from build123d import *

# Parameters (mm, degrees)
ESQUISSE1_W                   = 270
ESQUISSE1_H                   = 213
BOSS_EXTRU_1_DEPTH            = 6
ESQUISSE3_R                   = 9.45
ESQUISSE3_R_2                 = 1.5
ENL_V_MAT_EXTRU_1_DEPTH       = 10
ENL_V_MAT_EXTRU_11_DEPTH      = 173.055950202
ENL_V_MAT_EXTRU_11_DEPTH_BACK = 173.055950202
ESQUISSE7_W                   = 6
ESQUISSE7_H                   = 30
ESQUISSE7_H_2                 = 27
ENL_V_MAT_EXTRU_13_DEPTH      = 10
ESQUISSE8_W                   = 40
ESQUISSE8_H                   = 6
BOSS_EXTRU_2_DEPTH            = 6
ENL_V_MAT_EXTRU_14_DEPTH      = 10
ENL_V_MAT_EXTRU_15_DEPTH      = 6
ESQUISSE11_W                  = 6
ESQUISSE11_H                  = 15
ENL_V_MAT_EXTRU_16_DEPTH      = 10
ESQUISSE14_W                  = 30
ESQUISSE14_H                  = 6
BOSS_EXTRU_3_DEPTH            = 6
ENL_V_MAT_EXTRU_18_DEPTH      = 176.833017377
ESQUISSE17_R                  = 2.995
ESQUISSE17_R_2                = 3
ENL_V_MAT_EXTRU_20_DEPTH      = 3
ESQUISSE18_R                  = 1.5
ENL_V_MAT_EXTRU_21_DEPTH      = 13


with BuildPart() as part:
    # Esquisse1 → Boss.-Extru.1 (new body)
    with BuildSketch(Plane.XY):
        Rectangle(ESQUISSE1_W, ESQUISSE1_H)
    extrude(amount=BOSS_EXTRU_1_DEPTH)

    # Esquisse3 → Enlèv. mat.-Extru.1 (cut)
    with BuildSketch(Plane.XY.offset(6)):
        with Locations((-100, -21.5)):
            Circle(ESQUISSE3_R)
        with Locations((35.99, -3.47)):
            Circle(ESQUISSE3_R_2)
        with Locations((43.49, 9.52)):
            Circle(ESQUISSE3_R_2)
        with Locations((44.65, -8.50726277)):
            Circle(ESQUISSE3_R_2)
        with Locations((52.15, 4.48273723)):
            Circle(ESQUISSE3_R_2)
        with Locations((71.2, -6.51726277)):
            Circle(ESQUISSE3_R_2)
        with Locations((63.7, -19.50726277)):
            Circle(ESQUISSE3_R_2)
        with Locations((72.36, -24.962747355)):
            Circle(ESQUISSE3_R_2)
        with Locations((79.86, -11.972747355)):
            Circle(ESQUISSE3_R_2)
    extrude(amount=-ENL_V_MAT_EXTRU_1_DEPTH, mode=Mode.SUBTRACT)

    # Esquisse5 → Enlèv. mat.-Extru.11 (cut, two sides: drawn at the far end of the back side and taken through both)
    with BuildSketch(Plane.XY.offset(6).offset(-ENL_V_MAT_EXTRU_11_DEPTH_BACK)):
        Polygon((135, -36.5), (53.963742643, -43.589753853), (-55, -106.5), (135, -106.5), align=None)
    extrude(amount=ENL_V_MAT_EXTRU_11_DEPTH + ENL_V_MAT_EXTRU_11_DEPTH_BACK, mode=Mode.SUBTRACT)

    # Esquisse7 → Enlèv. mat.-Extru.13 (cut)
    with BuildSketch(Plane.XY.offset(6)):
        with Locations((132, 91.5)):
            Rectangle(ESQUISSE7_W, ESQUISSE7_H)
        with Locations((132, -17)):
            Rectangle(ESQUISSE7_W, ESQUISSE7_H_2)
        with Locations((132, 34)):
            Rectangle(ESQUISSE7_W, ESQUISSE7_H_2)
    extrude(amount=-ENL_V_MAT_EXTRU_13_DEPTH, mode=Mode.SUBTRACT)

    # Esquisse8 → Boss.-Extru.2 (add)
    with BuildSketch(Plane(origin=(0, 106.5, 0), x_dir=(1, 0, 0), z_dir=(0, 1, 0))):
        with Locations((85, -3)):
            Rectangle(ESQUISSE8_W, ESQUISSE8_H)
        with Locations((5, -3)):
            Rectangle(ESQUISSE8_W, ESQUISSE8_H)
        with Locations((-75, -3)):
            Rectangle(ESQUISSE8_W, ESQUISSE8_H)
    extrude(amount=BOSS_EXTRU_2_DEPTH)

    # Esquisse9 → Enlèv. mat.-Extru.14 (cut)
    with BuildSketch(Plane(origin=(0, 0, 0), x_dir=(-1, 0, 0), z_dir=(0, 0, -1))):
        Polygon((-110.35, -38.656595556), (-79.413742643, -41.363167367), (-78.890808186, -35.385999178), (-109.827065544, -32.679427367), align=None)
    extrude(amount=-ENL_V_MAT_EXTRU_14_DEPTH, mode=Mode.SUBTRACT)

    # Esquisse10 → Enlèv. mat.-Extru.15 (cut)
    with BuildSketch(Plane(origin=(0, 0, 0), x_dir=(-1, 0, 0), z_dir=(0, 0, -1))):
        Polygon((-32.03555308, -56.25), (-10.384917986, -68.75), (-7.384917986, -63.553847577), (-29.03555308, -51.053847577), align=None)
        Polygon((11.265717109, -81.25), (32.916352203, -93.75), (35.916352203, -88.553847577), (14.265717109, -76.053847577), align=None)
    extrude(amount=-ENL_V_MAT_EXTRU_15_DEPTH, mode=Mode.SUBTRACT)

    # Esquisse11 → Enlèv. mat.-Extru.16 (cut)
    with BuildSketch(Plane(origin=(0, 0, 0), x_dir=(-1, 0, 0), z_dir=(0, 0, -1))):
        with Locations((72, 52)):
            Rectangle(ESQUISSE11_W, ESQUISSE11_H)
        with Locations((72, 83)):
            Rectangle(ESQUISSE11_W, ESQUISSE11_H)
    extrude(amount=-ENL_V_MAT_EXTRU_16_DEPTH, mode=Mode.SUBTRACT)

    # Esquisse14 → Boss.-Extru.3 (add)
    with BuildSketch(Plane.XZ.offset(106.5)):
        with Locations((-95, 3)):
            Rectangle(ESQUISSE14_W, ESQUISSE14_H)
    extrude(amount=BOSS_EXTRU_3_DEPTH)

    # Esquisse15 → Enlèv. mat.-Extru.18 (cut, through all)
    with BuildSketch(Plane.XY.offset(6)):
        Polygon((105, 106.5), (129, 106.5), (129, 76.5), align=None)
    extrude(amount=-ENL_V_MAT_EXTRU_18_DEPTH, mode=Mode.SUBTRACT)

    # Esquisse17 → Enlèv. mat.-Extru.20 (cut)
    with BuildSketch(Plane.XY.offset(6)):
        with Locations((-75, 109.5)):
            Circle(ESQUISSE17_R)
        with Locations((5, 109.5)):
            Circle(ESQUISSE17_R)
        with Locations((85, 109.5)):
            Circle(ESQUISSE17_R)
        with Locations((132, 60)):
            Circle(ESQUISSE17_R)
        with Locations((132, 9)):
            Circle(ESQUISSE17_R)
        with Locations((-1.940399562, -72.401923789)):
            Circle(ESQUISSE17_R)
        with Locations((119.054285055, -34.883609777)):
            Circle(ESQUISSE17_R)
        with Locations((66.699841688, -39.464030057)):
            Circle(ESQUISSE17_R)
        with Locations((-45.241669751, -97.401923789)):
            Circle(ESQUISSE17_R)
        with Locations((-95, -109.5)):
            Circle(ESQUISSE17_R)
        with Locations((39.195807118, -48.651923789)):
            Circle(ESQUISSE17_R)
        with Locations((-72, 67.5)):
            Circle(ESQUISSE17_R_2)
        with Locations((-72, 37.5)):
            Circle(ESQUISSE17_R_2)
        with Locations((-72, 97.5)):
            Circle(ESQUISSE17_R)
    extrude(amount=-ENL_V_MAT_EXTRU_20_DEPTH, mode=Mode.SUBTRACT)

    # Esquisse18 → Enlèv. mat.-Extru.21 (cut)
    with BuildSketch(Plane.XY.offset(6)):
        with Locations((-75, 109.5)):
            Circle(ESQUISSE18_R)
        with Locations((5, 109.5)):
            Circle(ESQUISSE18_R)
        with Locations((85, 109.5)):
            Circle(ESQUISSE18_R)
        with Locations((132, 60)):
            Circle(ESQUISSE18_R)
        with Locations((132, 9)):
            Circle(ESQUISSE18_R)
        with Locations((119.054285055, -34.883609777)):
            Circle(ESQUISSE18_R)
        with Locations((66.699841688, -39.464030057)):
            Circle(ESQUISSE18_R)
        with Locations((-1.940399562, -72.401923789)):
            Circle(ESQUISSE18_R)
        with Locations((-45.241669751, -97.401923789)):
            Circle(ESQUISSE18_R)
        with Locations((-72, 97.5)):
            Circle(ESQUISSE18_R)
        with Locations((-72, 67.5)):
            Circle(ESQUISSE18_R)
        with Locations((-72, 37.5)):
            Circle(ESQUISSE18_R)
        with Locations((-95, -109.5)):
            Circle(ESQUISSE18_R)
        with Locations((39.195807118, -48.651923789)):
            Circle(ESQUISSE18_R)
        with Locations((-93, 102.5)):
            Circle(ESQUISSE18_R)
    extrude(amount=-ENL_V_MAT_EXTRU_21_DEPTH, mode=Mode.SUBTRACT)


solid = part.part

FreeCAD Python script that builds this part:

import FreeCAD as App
import Part
import Sketcher

V = App.Vector
Q = App.Units.Quantity

doc = App.newDocument("Part")
params = doc.addObject("Spreadsheet::Sheet", "Params")
for row, (alias, value) in enumerate([
    ("sketch1_width", "270 mm"),
    ("sketch1_height", "213 mm"),
    ("pad1_length", "6 mm"),
    ("sketch2_diameter", "3 mm"),
    ("sketch2_diameter2", "18.9 mm"),
    ("pocket1_length", "10 mm"),
    ("sketch3_width", "190 mm"),
    ("sketch3_height", "70 mm"),
    ("sketch4_width", "6 mm"),
    ("sketch4_height", "30 mm"),
    ("sketch4_height2", "27 mm"),
    ("pocket3_length", "10 mm"),
    ("sketch5_width", "40 mm"),
    ("sketch5_height", "6 mm"),
    ("pad2_length", "6 mm"),
    ("sketch6_length", "6 mm"),
    ("pocket4_length", "10 mm"),
    ("sketch7_length", "25 mm"),
    ("sketch7_length2", "6 mm"),
    ("pocket5_length", "6 mm"),
    ("sketch8_width", "6 mm"),
    ("sketch8_height", "15 mm"),
    ("pocket6_length", "10 mm"),
    ("sketch9_width", "30 mm"),
    ("sketch9_height", "6 mm"),
    ("pad3_length", "6 mm"),
    ("sketch10_width", "24 mm"),
    ("sketch10_height", "30 mm"),
    ("sketch11_diameter", "6 mm"),
    ("sketch11_diameter2", "5.99 mm"),
    ("pocket8_length", "3 mm"),
    ("sketch12_diameter", "3 mm"),
    ("pocket9_length", "13 mm"),
], start=1):
    params.set(f"A{row}", alias)
    params.set(f"B{row}", "=" + value)
    params.setAlias(f"B{row}", alias)

body = doc.addObject("PartDesign::Body", "Body")

# Sketch on XY plane
sketch1 = body.newObject("Sketcher::SketchObject", "Sketch")
sketch1.AttachmentSupport = (doc.getObject("XY_Plane"), [""])
sketch1.MapMode = "FlatFace"
sketch1.addGeometry(Part.LineSegment(V(-135, 106, 0), V(-135, -106, 0)), False)
sketch1.addGeometry(Part.LineSegment(V(-135, -106, 0), V(135, -106, 0)), False)
sketch1.addGeometry(Part.LineSegment(V(135, -106, 0), V(135, 106, 0)), False)
sketch1.addGeometry(Part.LineSegment(V(135, 106, 0), V(-135, 106, 0)), False)
sketch1.addConstraint(Sketcher.Constraint("Coincident", 0, 2, 1, 1))
sketch1.addConstraint(Sketcher.Constraint("Coincident", 1, 2, 2, 1))
sketch1.addConstraint(Sketcher.Constraint("Coincident", 2, 2, 3, 1))
sketch1.addConstraint(Sketcher.Constraint("Coincident", 3, 2, 0, 1))
sketch1.addConstraint(Sketcher.Constraint("Vertical", 0))
sketch1.addConstraint(Sketcher.Constraint("Horizontal", 1))
sketch1.addConstraint(Sketcher.Constraint("Vertical", 2))
sketch1.addConstraint(Sketcher.Constraint("Horizontal", 3))
sketch1.addConstraint(Sketcher.Constraint("Symmetric", 0, 2, 2, 2, -1, 1))
sketch1.addConstraint(Sketcher.Constraint("DistanceX", 1, 1, 1, 2, Q("270 mm")))
sketch1.addConstraint(Sketcher.Constraint("DistanceY", 0, 2, 0, 1, Q("213 mm")))
sketch1.setExpression("Constraints[9]", "Params.sketch1_width")
sketch1.setExpression("Constraints[10]", "Params.sketch1_height")
pad1 = body.newObject("PartDesign::Pad", "Pad")
pad1.Profile = sketch1
pad1.setExpression("Length", "Params.pad1_length")

# Sketch on XY plane
sketch2 = body.newObject("Sketcher::SketchObject", "Sketch001")
sketch2.AttachmentSupport = (doc.getObject("XY_Plane"), [""])
sketch2.MapMode = "FlatFace"
sketch2.AttachmentOffset = App.Placement(V(0, 0, 6), App.Rotation())
sketch2.addGeometry(Part.Circle(V(-100, -21.5, 0), V(0, 0, 1), 9.4), False)
sketch2.addGeometry(Part.Circle(V(36, -3.5, 0), V(0, 0, 1), 1.5), False)
sketch2.addGeometry(Part.Circle(V(43.5, 9.5, 0), V(0, 0, 1), 1.5), False)
sketch2.addGeometry(Part.Circle(V(44.6, -8.5, 0), V(0, 0, 1), 1.5), False)
sketch2.addGeometry(Part.Circle(V(52.1, 4.5, 0), V(0, 0, 1), 1.5), False)
sketch2.addGeometry(Part.Circle(V(71.2, -6.5, 0), V(0, 0, 1), 1.5), False)
sketch2.addGeometry(Part.Circle(V(63.7, -19.5, 0), V(0, 0, 1), 1.5), False)
sketch2.addGeometry(Part.Circle(V(72.4, -25, 0), V(0, 0, 1), 1.5), False)
sketch2.addGeometry(Part.Circle(V(79.9, -12, 0), V(0, 0, 1), 1.5), False)
sketch2.addConstraint(Sketcher.Constraint("Equal", 1, 2))
sketch2.addConstraint(Sketcher.Constraint("Equal", 2, 3))
sketch2.addConstraint(Sketcher.Constraint("Equal", 3, 4))
sketch2.addConstraint(Sketcher.Constraint("Equal", 4, 5))
sketch2.addConstraint(Sketcher.Constraint("Equal", 5, 6))
sketch2.addConstraint(Sketcher.Constraint("Equal", 6, 7))
sketch2.addConstraint(Sketcher.Constraint("Equal", 7, 8))
sketch2.addConstraint(Sketcher.Constraint("Diameter", 1, Q("3 mm")))
sketch2.addConstraint(Sketcher.Constraint("Diameter", 0, Q("18.9 mm")))
sketch2.addConstraint(Sketcher.Constraint("DistanceX", 0, 3, -1, 1, Q("100 mm")))
sketch2.addConstraint(Sketcher.Constraint("DistanceY", 5, 3, 4, 3, Q("11 mm")))
sketch2.addConstraint(Sketcher.Constraint("DistanceY", 6, 3, 3, 3, Q("11 mm")))
sketch2.addConstraint(Sketcher.Constraint("DistanceY", 0, 3, -1, 1, Q("21.5 mm")))
sketch2.addConstraint(Sketcher.Constraint("DistanceX", -1, 1, 5, 3, Q("71.2 mm")))
sketch2.addConstraint(Sketcher.Constraint("DistanceX", -1, 1, 6, 3, Q("63.7 mm")))
sketch2.addConstraint(Sketcher.Constraint("DistanceX", 1, 3, 2, 3, Q("7.5 mm")))
sketch2.addConstraint(Sketcher.Constraint("DistanceX", 3, 3, 4, 3, Q("7.5 mm")))
sketch2.addConstraint(Sketcher.Constraint("DistanceX", 7, 3, 8, 3, Q("7.5 mm")))
sketch2.addConstraint(Sketcher.Constraint("DistanceX", -1, 1, 1, 3, Q("35.99 mm")))
sketch2.addConstraint(Sketcher.Constraint("DistanceY", 1, 3, -1, 1, Q("3.47 mm")))
sketch2.addConstraint(Sketcher.Constraint("DistanceY", -1, 1, 2, 3, Q("9.52 mm")))
sketch2.addConstraint(Sketcher.Constraint("DistanceX", -1, 1, 3, 3, Q("44.65 mm")))
sketch2.addConstraint(Sketcher.Constraint("DistanceX", -1, 1, 7, 3, Q("72.36 mm")))
sketch2.addConstraint(Sketcher.Constraint("DistanceY", 3, 3, 4, 3, Q("12.99 mm")))
sketch2.addConstraint(Sketcher.Constraint("DistanceY", 7, 3, 8, 3, Q("12.99 mm")))
sketch2.addConstraint(Sketcher.Constraint("DistanceY", 3, 3, -1, 1, Q("8.507263 mm")))
sketch2.addConstraint(Sketcher.Constraint("DistanceY", 7, 3, -1, 1, Q("24.962747 mm")))
sketch2.setExpression("Constraints[7]", "Params.sketch2_diameter")
sketch2.setExpression("Constraints[8]", "Params.sketch2_diameter2")
pocket1 = body.newObject("PartDesign::Pocket", "Pocket")
pocket1.Profile = sketch2
pocket1.setExpression("Length", "Params.pocket1_length")

# Sketch on XY plane
sketch3 = body.newObject("Sketcher::SketchObject", "Sketch002")
sketch3.AttachmentSupport = (doc.getObject("XY_Plane"), [""])
sketch3.MapMode = "FlatFace"
sketch3.AttachmentOffset = App.Placement(V(0, 0, 6), App.Rotation())
sketch3.addGeometry(Part.LineSegment(V(135, -36, 0), V(54, -44, 0)), False)
sketch3.addGeometry(Part.LineSegment(V(54, -44, 0), V(-55, -106, 0)), False)
sketch3.addGeometry(Part.LineSegment(V(-55, -106, 0), V(135, -106, 0)), False)
sketch3.addGeometry(Part.LineSegment(V(135, -106, 0), V(135, -36, 0)), False)
sketch3.addConstraint(Sketcher.Constraint("Coincident", 0, 2, 1, 1))
sketch3.addConstraint(Sketcher.Constraint("Coincident", 1, 2, 2, 1))
sketch3.addConstraint(Sketcher.Constraint("Coincident", 2, 2, 3, 1))
sketch3.addConstraint(Sketcher.Constraint("Coincident", 3, 2, 0, 1))
sketch3.addConstraint(Sketcher.Constraint("Horizontal", 2))
sketch3.addConstraint(Sketcher.Constraint("Vertical", 3))
sketch3.addConstraint(Sketcher.Constraint("DistanceX", 2, 1, 2, 2, Q("190 mm")))
sketch3.addConstraint(Sketcher.Constraint("DistanceY", 3, 1, 3, 2, Q("70 mm")))
sketch3.addConstraint(Sketcher.Constraint("Angle", 0, Q("-175 deg")))
sketch3.addConstraint(Sketcher.Constraint("Angle", 1, Q("-150 deg")))
sketch3.addConstraint(Sketcher.Constraint("DistanceX", 1, 2, -1, 1, Q("55 mm")))
sketch3.addConstraint(Sketcher.Constraint("DistanceY", 1, 2, -1, 1, Q("106.5 mm")))
sketch3.setExpression("Constraints[6]", "Params.sketch3_width")
sketch3.setExpression("Constraints[7]", "Params.sketch3_height")
pocket2 = body.newObject("PartDesign::Pocket", "Pocket001")
pocket2.Profile = sketch3
pocket2.Type = "ThroughAll"
pocket2.Midplane = True

# Sketch on XY plane
sketch4 = body.newObject("Sketcher::SketchObject", "Sketch003")
sketch4.AttachmentSupport = (doc.getObject("XY_Plane"), [""])
sketch4.MapMode = "FlatFace"
sketch4.AttachmentOffset = App.Placement(V(0, 0, 6), App.Rotation())
sketch4.addGeometry(Part.LineSegment(V(129, 106, 0), V(129, 76, 0)), False)
sketch4.addGeometry(Part.LineSegment(V(129, 76, 0), V(135, 76, 0)), False)
sketch4.addGeometry(Part.LineSegment(V(135, 76, 0), V(135, 106, 0)), False)
sketch4.addGeometry(Part.LineSegment(V(135, 106, 0), V(129, 106, 0)), False)
sketch4.addGeometry(Part.LineSegment(V(129, -4, 0), V(129, -30, 0)), False)
sketch4.addGeometry(Part.LineSegment(V(129, -30, 0), V(135, -30, 0)), False)
sketch4.addGeometry(Part.LineSegment(V(135, -30, 0), V(135, -4, 0)), False)
sketch4.addGeometry(Part.LineSegment(V(135, -4, 0), V(129, -4, 0)), False)
sketch4.addGeometry(Part.LineSegment(V(129, 48, 0), V(129, 20, 0)), False)
sketch4.addGeometry(Part.LineSegment(V(129, 20, 0), V(135, 20, 0)), False)
sketch4.addGeometry(Part.LineSegment(V(135, 20, 0), V(135, 48, 0)), False)
sketch4.addGeometry(Part.LineSegment(V(135, 48, 0), V(129, 48, 0)), False)
sketch4.addConstraint(Sketcher.Constraint("Coincident", 0, 2, 1, 1))
sketch4.addConstraint(Sketcher.Constraint("Coincident", 1, 2, 2, 1))
sketch4.addConstraint(Sketcher.Constraint("Coincident", 2, 2, 3, 1))
sketch4.addConstraint(Sketcher.Constraint("Coincident", 3, 2, 0, 1))
sketch4.addConstraint(Sketcher.Constraint("Coincident", 4, 2, 5, 1))
sketch4.addConstraint(Sketcher.Constraint("Coincident", 5, 2, 6, 1))
sketch4.addConstraint(Sketcher.Constraint("Coincident", 6, 2, 7, 1))
sketch4.addConstraint(Sketcher.Constraint("Coincident", 7, 2, 4, 1))
sketch4.addConstraint(Sketcher.Constraint("Coincident", 8, 2, 9, 1))
sketch4.addConstraint(Sketcher.Constraint("Coincident", 9, 2, 10, 1))
sketch4.addConstraint(Sketcher.Constraint("Coincident", 10, 2, 11, 1))
sketch4.addConstraint(Sketcher.Constraint("Coincident", 11, 2, 8, 1))
sketch4.addConstraint(Sketcher.Constraint("Vertical", 0))
sketch4.addConstraint(Sketcher.Constraint("Horizontal", 1))
sketch4.addConstraint(Sketcher.Constraint("Vertical", 2))
sketch4.addConstraint(Sketcher.Constraint("Horizontal", 3))
sketch4.addConstraint(Sketcher.Constraint("Vertical", 4))
sketch4.addConstraint(Sketcher.Constraint("Horizontal", 5))
sketch4.addConstraint(Sketcher.Constraint("Vertical", 6))
sketch4.addConstraint(Sketcher.Constraint("Horizontal", 7))
sketch4.addConstraint(Sketcher.Constraint("Vertical", 8))
sketch4.addConstraint(Sketcher.Constraint("Horizontal", 9))
sketch4.addConstraint(Sketcher.Constraint("Vertical", 10))
sketch4.addConstraint(Sketcher.Constraint("Horizontal", 11))
sketch4.addConstraint(Sketcher.Constraint("Vertical", 3, 2, 4, 2))
sketch4.addConstraint(Sketcher.Constraint("Vertical", 2, 2, 5, 2))
sketch4.addConstraint(Sketcher.Constraint("Vertical", 7, 2, 8, 2))
sketch4.addConstraint(Sketcher.Constraint("Vertical", 6, 2, 9, 2))
sketch4.addConstraint(Sketcher.Constraint("Equal", 6, 8))
sketch4.addConstraint(Sketcher.Constraint("DistanceX", 1, 1, 1, 2, Q("6 mm")))
sketch4.addConstraint(Sketcher.Constraint("DistanceY", 0, 2, 0, 1, Q("30 mm")))
sketch4.addConstraint(Sketcher.Constraint("DistanceY", 4, 2, 4, 1, Q("27 mm")))
sketch4.addConstraint(Sketcher.Constraint("DistanceX", -1, 1, 0, 2, Q("129 mm")))
sketch4.addConstraint(Sketcher.Constraint("DistanceY", 4, 2, 0, 2, Q("107 mm")))
sketch4.addConstraint(Sketcher.Constraint("DistanceY", 7, 2, 8, 2, Q("24 mm")))
sketch4.addConstraint(Sketcher.Constraint("DistanceY", -1, 1, 0, 2, Q("76.5 mm")))
sketch4.setExpression("Constraints[29]", "Params.sketch4_width")
sketch4.setExpression("Constraints[30]", "Params.sketch4_height")
sketch4.setExpression("Constraints[31]", "Params.sketch4_height2")
pocket3 = body.newObject("PartDesign::Pocket", "Pocket002")
pocket3.Profile = sketch4
pocket3.setExpression("Length", "Params.pocket3_length")

# Sketch on XZ plane
sketch5 = body.newObject("Sketcher::SketchObject", "Sketch004")
sketch5.AttachmentSupport = (doc.getObject("XZ_Plane"), [""])
sketch5.MapMode = "FlatFace"
sketch5.AttachmentOffset = App.Placement(V(0, 0, -106.5), App.Rotation())
sketch5.addGeometry(Part.LineSegment(V(65, 0, 0), V(65, 6, 0)), False)
sketch5.addGeometry(Part.LineSegment(V(65, 6, 0), V(105, 6, 0)), False)
sketch5.addGeometry(Part.LineSegment(V(105, 6, 0), V(105, 0, 0)), False)
sketch5.addGeometry(Part.LineSegment(V(105, 0, 0), V(65, 0, 0)), False)
sketch5.addGeometry(Part.LineSegment(V(-15, 0, 0), V(-15, 6, 0)), False)
sketch5.addGeometry(Part.LineSegment(V(-15, 6, 0), V(25, 6, 0)), False)
sketch5.addGeometry(Part.LineSegment(V(25, 6, 0), V(25, 0, 0)), False)
sketch5.addGeometry(Part.LineSegment(V(25, 0, 0), V(-15, 0, 0)), False)
sketch5.addGeometry(Part.LineSegment(V(-95, 0, 0), V(-95, 6, 0)), False)
sketch5.addGeometry(Part.LineSegment(V(-95, 6, 0), V(-55, 6, 0)), False)
sketch5.addGeometry(Part.LineSegment(V(-55, 6, 0), V(-55, 0, 0)), False)
sketch5.addGeometry(Part.LineSegment(V(-55, 0, 0), V(-95, 0, 0)), False)
sketch5.addConstraint(Sketcher.Constraint("Coincident", 0, 2, 1, 1))
sketch5.addConstraint(Sketcher.Constraint("Coincident", 1, 2, 2, 1))
sketch5.addConstraint(Sketcher.Constraint("Coincident", 2, 2, 3, 1))
sketch5.addConstraint(Sketcher.Constraint("Coincident", 3, 2, 0, 1))
sketch5.addConstraint(Sketcher.Constraint("Coincident", 4, 2, 5, 1))
sketch5.addConstraint(Sketcher.Constraint("Coincident", 5, 2, 6, 1))
sketch5.addConstraint(Sketcher.Constraint("Coincident", 6, 2, 7, 1))
sketch5.addConstraint(Sketcher.Constraint("Coincident", 7, 2, 4, 1))
sketch5.addConstraint(Sketcher.Constraint("Coincident", 8, 2, 9, 1))
sketch5.addConstraint(Sketcher.Constraint("Coincident", 9, 2, 10, 1))
sketch5.addConstraint(Sketcher.Constraint("Coincident", 10, 2, 11, 1))
sketch5.addConstraint(Sketcher.Constraint("Coincident", 11, 2, 8, 1))
sketch5.addConstraint(Sketcher.Constraint("Vertical", 0))
sketch5.addConstraint(Sketcher.Constraint("Horizontal", 1))
sketch5.addConstraint(Sketcher.Constraint("Vertical", 2))
sketch5.addConstraint(Sketcher.Constraint("Horizontal", 3))
sketch5.addConstraint(Sketcher.Constraint("Vertical", 4))
sketch5.addConstraint(Sketcher.Constraint("Horizontal", 5))
sketch5.addConstraint(Sketcher.Constraint("Vertical", 6))
sketch5.addConstraint(Sketcher.Constraint("Horizontal", 7))
sketch5.addConstraint(Sketcher.Constraint("Vertical", 8))
sketch5.addConstraint(Sketcher.Constraint("Horizontal", 9))
sketch5.addConstraint(Sketcher.Constraint("Vertical", 10))
sketch5.addConstraint(Sketcher.Constraint("Horizontal", 11))
sketch5.addConstraint(Sketcher.Constraint("PointOnObject", 2, 2, -1))
sketch5.addConstraint(Sketcher.Constraint("PointOnObject", 6, 2, -1))
sketch5.addConstraint(Sketcher.Constraint("PointOnObject", 10, 2, -1))
sketch5.addConstraint(Sketcher.Constraint("Horizontal", 1, 2, 4, 2))
sketch5.addConstraint(Sketcher.Constraint("Horizontal", 5, 2, 8, 2))
sketch5.addConstraint(Sketcher.Constraint("Equal", 3, 5))
sketch5.addConstraint(Sketcher.Constraint("Equal", 7, 9))
sketch5.addConstraint(Sketcher.Constraint("DistanceX", 1, 1, 1, 2, Q("40 mm")))
sketch5.addConstraint(Sketcher.Constraint("DistanceY", 0, 1, 0, 2, Q("6 mm")))
sketch5.addConstraint(Sketcher.Constraint("DistanceX", -1, 1, 0, 2, Q("65 mm")))
sketch5.addConstraint(Sketcher.Constraint("DistanceX", 4, 2, -1, 1, Q("15 mm")))
sketch5.addConstraint(Sketcher.Constraint("DistanceX", 8, 2, -1, 1, Q("95 mm")))
sketch5.setExpression("Constraints[31]", "Params.sketch5_width")
sketch5.setExpression("Constraints[32]", "Params.sketch5_height")
pad2 = body.newObject("PartDesign::Pad", "Pad001")
pad2.Profile = sketch5
pad2.setExpression("Length", "Params.pad2_length")
pad2.Reversed = True

# Sketch on XY plane
sketch6 = body.newObject("Sketcher::SketchObject", "Sketch005")
sketch6.AttachmentSupport = (doc.getObject("XY_Plane"), [""])
sketch6.MapMode = "FlatFace"
sketch6.addGeometry(Part.LineSegment(V(110, -39, 0), V(79, -41, 0)), False)
sketch6.addGeometry(Part.LineSegment(V(79, -41, 0), V(79, -35, 0)), False)
sketch6.addGeometry(Part.LineSegment(V(79, -35, 0), V(110, -33, 0)), False)
sketch6.addGeometry(Part.LineSegment(V(110, -33, 0), V(110, -39, 0)), False)
sketch6.addConstraint(Sketcher.Constraint("Coincident", 0, 2, 1, 1))
sketch6.addConstraint(Sketcher.Constraint("Coincident", 1, 2, 2, 1))
sketch6.addConstraint(Sketcher.Constraint("Coincident", 2, 2, 3, 1))
sketch6.addConstraint(Sketcher.Constraint("Coincident", 3, 2, 0, 1))
sketch6.addConstraint(Sketcher.Constraint("Perpendicular", 0, 1))
sketch6.addConstraint(Sketcher.Constraint("Perpendicular", 1, 2))
sketch6.addConstraint(Sketcher.Constraint("Perpendicular", 2, 3))
sketch6.addConstraint(Sketcher.Constraint("Angle", 0, Q("-175 deg")))
sketch6.addConstraint(Sketcher.Constraint("Distance", 1, Q("6 mm")))
sketch6.addConstraint(Sketcher.Constraint("DistanceX", -1, 1, 3, 2, Q("110.35 mm")))
sketch6.addConstraint(Sketcher.Constraint("DistanceY", 1, 2, -1, 1, Q("35.385999 mm")))
sketch6.addConstraint(Sketcher.Constraint("Distance", 0, Q("31.054429 mm")))
sketch6.setExpression("Constraints[8]", "Params.sketch6_length")
pocket4 = body.newObject("PartDesign::Pocket", "Pocket003")
pocket4.Profile = sketch6
pocket4.setExpression("Length", "Params.pocket4_length")
pocket4.Reversed = True

# Sketch on XY plane
sketch7 = body.newObject("Sketcher::SketchObject", "Sketch006")
sketch7.AttachmentSupport = (doc.getObject("XY_Plane"), [""])
sketch7.MapMode = "FlatFace"
sketch7.addGeometry(Part.LineSegment(V(32, -56, 0), V(10, -69, 0)), False)
sketch7.addGeometry(Part.LineSegment(V(10, -69, 0), V(7, -64, 0)), False)
sketch7.addGeometry(Part.LineSegment(V(7, -64, 0), V(29, -51, 0)), False)
sketch7.addGeometry(Part.LineSegment(V(29, -51, 0), V(32, -56, 0)), False)
sketch7.addGeometry(Part.LineSegment(V(-11, -81, 0), V(-33, -94, 0)), False)
sketch7.addGeometry(Part.LineSegment(V(-33, -94, 0), V(-36, -89, 0)), False)
sketch7.addGeometry(Part.LineSegment(V(-36, -89, 0), V(-14, -76, 0)), False)
sketch7.addGeometry(Part.LineSegment(V(-14, -76, 0), V(-11, -81, 0)), False)
sketch7.addConstraint(Sketcher.Constraint("Coincident", 0, 2, 1, 1))
sketch7.addConstraint(Sketcher.Constraint("Coincident", 1, 2, 2, 1))
sketch7.addConstraint(Sketcher.Constraint("Coincident", 2, 2, 3, 1))
sketch7.addConstraint(Sketcher.Constraint("Coincident", 3, 2, 0, 1))
sketch7.addConstraint(Sketcher.Constraint("Coincident", 4, 2, 5, 1))
sketch7.addConstraint(Sketcher.Constraint("Coincident", 5, 2, 6, 1))
sketch7.addConstraint(Sketcher.Constraint("Coincident", 6, 2, 7, 1))
sketch7.addConstraint(Sketcher.Constraint("Coincident", 7, 2, 4, 1))
sketch7.addConstraint(Sketcher.Constraint("Perpendicular", 0, 1))
sketch7.addConstraint(Sketcher.Constraint("Perpendicular", 1, 2))
sketch7.addConstraint(Sketcher.Constraint("Perpendicular", 2, 3))
sketch7.addConstraint(Sketcher.Constraint("Perpendicular", 3, 4))
sketch7.addConstraint(Sketcher.Constraint("Perpendicular", 4, 5))
sketch7.addConstraint(Sketcher.Constraint("Perpendicular", 5, 6))
sketch7.addConstraint(Sketcher.Constraint("Perpendicular", 6, 7))
sketch7.addConstraint(Sketcher.Constraint("Equal", 2, 4))
sketch7.addConstraint(Sketcher.Constraint("Equal", 3, 5))
sketch7.addConstraint(Sketcher.Constraint("Angle", 0, Q("-150 deg")))
sketch7.addConstraint(Sketcher.Constraint("Distance", 0, Q("25 mm")))
sketch7.addConstraint(Sketcher.Constraint("Distance", 1, Q("6 mm")))
sketch7.addConstraint(Sketcher.Constraint("DistanceY", 4, 2, 0, 2, Q("25 mm")))
sketch7.addConstraint(Sketcher.Constraint("DistanceY", 0, 2, -1, 1, Q("68.75 mm")))
sketch7.addConstraint(Sketcher.Constraint("DistanceX", 4, 2, 0, 2, Q("43.30127 mm")))
sketch7.addConstraint(Sketcher.Constraint("DistanceX", -1, 1, 0, 2, Q("10.384918 mm")))
sketch7.setExpression("Constraints[18]", "Params.sketch7_length")
sketch7.setExpression("Constraints[19]", "Params.sketch7_length2")
pocket5 = body.newObject("PartDesign::Pocket", "Pocket004")
pocket5.Profile = sketch7
pocket5.setExpression("Length", "Params.pocket5_length")
pocket5.Reversed = True

# Sketch on XY plane
sketch8 = body.newObject("Sketcher::SketchObject", "Sketch007")
sketch8.AttachmentSupport = (doc.getObject("XY_Plane"), [""])
sketch8.MapMode = "FlatFace"
sketch8.addGeometry(Part.LineSegment(V(-69, 60, 0), V(-69, 44, 0)), False)
sketch8.addGeometry(Part.LineSegment(V(-69, 44, 0), V(-75, 44, 0)), False)
sketch8.addGeometry(Part.LineSegment(V(-75, 44, 0), V(-75, 60, 0)), False)
sketch8.addGeometry(Part.LineSegment(V(-75, 60, 0), V(-69, 60, 0)), False)
sketch8.addGeometry(Part.LineSegment(V(-69, 90, 0), V(-69, 76, 0)), False)
sketch8.addGeometry(Part.LineSegment(V(-69, 76, 0), V(-75, 76, 0)), False)
sketch8.addGeometry(Part.LineSegment(V(-75, 76, 0), V(-75, 90, 0)), False)
sketch8.addGeometry(Part.LineSegment(V(-75, 90, 0), V(-69, 90, 0)), False)
sketch8.addConstraint(Sketcher.Constraint("Coincident", 0, 2, 1, 1))
sketch8.addConstraint(Sketcher.Constraint("Coincident", 1, 2, 2, 1))
sketch8.addConstraint(Sketcher.Constraint("Coincident", 2, 2, 3, 1))
sketch8.addConstraint(Sketcher.Constraint("Coincident", 3, 2, 0, 1))
sketch8.addConstraint(Sketcher.Constraint("Coincident", 4, 2, 5, 1))
sketch8.addConstraint(Sketcher.Constraint("Coincident", 5, 2, 6, 1))
sketch8.addConstraint(Sketcher.Constraint("Coincident", 6, 2, 7, 1))
sketch8.addConstraint(Sketcher.Constraint("Coincident", 7, 2, 4, 1))
sketch8.addConstraint(Sketcher.Constraint("Vertical", 0))
sketch8.addConstraint(Sketcher.Constraint("Horizontal", 1))
sketch8.addConstraint(Sketcher.Constraint("Vertical", 2))
sketch8.addConstraint(Sketcher.Constraint("Horizontal", 3))
sketch8.addConstraint(Sketcher.Constraint("Vertical", 4))
sketch8.addConstraint(Sketcher.Constraint("Horizontal", 5))
sketch8.addConstraint(Sketcher.Constraint("Vertical", 6))
sketch8.addConstraint(Sketcher.Constraint("Horizontal", 7))
sketch8.addConstraint(Sketcher.Constraint("Vertical", 3, 2, 4, 2))
sketch8.addConstraint(Sketcher.Constraint("Vertical", 2, 2, 5, 2))
sketch8.addConstraint(Sketcher.Constraint("Equal", 2, 4))
sketch8.addConstraint(Sketcher.Constraint("DistanceX", 1, 2, 1, 1, Q("6 mm")))
sketch8.addConstraint(Sketcher.Constraint("DistanceY", 0, 2, 0, 1, Q("15 mm")))
sketch8.addConstraint(Sketcher.Constraint("DistanceX", 0, 2, -1, 1, Q("69 mm")))
sketch8.addConstraint(Sketcher.Constraint("DistanceY", 3, 2, 4, 2, Q("16 mm")))
sketch8.addConstraint(Sketcher.Constraint("DistanceY", -1, 1, 0, 2, Q("44.5 mm")))
sketch8.setExpression("Constraints[19]", "Params.sketch8_width")
sketch8.setExpression("Constraints[20]", "Params.sketch8_height")
pocket6 = body.newObject("PartDesign::Pocket", "Pocket005")
pocket6.Profile = sketch8
pocket6.setExpression("Length", "Params.pocket6_length")
pocket6.Reversed = True

# Sketch on XZ plane
sketch9 = body.newObject("Sketcher::SketchObject", "Sketch008")
sketch9.AttachmentSupport = (doc.getObject("XZ_Plane"), [""])
sketch9.MapMode = "FlatFace"
sketch9.AttachmentOffset = App.Placement(V(0, 0, 106.5), App.Rotation())
sketch9.addGeometry(Part.LineSegment(V(-110, 6, 0), V(-110, 0, 0)), False)
sketch9.addGeometry(Part.LineSegment(V(-110, 0, 0), V(-80, 0, 0)), False)
sketch9.addGeometry(Part.LineSegment(V(-80, 0, 0), V(-80, 6, 0)), False)
sketch9.addGeometry(Part.LineSegment(V(-80, 6, 0), V(-110, 6, 0)), False)
sketch9.addConstraint(Sketcher.Constraint("Coincident", 0, 2, 1, 1))
sketch9.addConstraint(Sketcher.Constraint("Coincident", 1, 2, 2, 1))
sketch9.addConstraint(Sketcher.Constraint("Coincident", 2, 2, 3, 1))
sketch9.addConstraint(Sketcher.Constraint("Coincident", 3, 2, 0, 1))
sketch9.addConstraint(Sketcher.Constraint("Vertical", 0))
sketch9.addConstraint(Sketcher.Constraint("Horizontal", 1))
sketch9.addConstraint(Sketcher.Constraint("Vertical", 2))
sketch9.addConstraint(Sketcher.Constraint("Horizontal", 3))
sketch9.addConstraint(Sketcher.Constraint("PointOnObject", 0, 2, -1))
sketch9.addConstraint(Sketcher.Constraint("DistanceX", 1, 1, 1, 2, Q("30 mm")))
sketch9.addConstraint(Sketcher.Constraint("DistanceY", 0, 2, 0, 1, Q("6 mm")))
sketch9.addConstraint(Sketcher.Constraint("DistanceX", 0, 2, -1, 1, Q("110 mm")))
sketch9.setExpression("Constraints[9]", "Params.sketch9_width")
sketch9.setExpression("Constraints[10]", "Params.sketch9_height")
pad3 = body.newObject("PartDesign::Pad", "Pad002")
pad3.Profile = sketch9
pad3.setExpression("Length", "Params.pad3_length")

# Sketch on XY plane
sketch10 = body.newObject("Sketcher::SketchObject", "Sketch009")
sketch10.AttachmentSupport = (doc.getObject("XY_Plane"), [""])
sketch10.MapMode = "FlatFace"
sketch10.AttachmentOffset = App.Placement(V(0, 0, 6), App.Rotation())
sketch10.addGeometry(Part.LineSegment(V(129, 106, 0), V(105, 106, 0)), False)
sketch10.addGeometry(Part.LineSegment(V(105, 106, 0), V(129, 76, 0)), False)
sketch10.addGeometry(Part.LineSegment(V(129, 76, 0), V(129, 106, 0)), False)
sketch10.addConstraint(Sketcher.Constraint("Coincident", 0, 2, 1, 1))
sketch10.addConstraint(Sketcher.Constraint("Coincident", 1, 2, 2, 1))
sketch10.addConstraint(Sketcher.Constraint("Coincident", 2, 2, 0, 1))
sketch10.addConstraint(Sketcher.Constraint("Horizontal", 0))
sketch10.addConstraint(Sketcher.Constraint("Vertical", 2))
sketch10.addConstraint(Sketcher.Constraint("DistanceX", 0, 2, 0, 1, Q("24 mm")))
sketch10.addConstraint(Sketcher.Constraint("DistanceY", 2, 1, 2, 2, Q("30 mm")))
sketch10.addConstraint(Sketcher.Constraint("DistanceX", -1, 1, 0, 2, Q("105 mm")))
sketch10.addConstraint(Sketcher.Constraint("DistanceY", -1, 1, 0, 2, Q("106.5 mm")))
sketch10.setExpression("Constraints[5]", "Params.sketch10_width")
sketch10.setExpression("Constraints[6]", "Params.sketch10_height")
pocket7 = body.newObject("PartDesign::Pocket", "Pocket006")
pocket7.Profile = sketch10
pocket7.Type = "ThroughAll"

# Sketch on XY plane
sketch11 = body.newObject("Sketcher::SketchObject", "Sketch010")
sketch11.AttachmentSupport = (doc.getObject("XY_Plane"), [""])
sketch11.MapMode = "FlatFace"
sketch11.AttachmentOffset = App.Placement(V(0, 0, 6), App.Rotation())
sketch11.addGeometry(Part.Circle(V(-75, 109.5, 0), V(0, 0, 1), 3), False)
sketch11.addGeometry(Part.Circle(V(5, 109.5, 0), V(0, 0, 1), 3), False)
sketch11.addGeometry(Part.Circle(V(85, 109.5, 0), V(0, 0, 1), 3), False)
sketch11.addGeometry(Part.Circle(V(132, 60, 0), V(0, 0, 1), 3), False)
sketch11.addGeometry(Part.Circle(V(132, 9, 0), V(0, 0, 1), 3), False)
sketch11.addGeometry(Part.Circle(V(-1.9, -72.4, 0), V(0, 0, 1), 3), False)
sketch11.addGeometry(Part.Circle(V(119.1, -34.9, 0), V(0, 0, 1), 3), False)
sketch11.addGeometry(Part.Circle(V(66.7, -39.5, 0), V(0, 0, 1), 3), False)
sketch11.addGeometry(Part.Circle(V(-45.2, -97.4, 0), V(0, 0, 1), 3), False)
sketch11.addGeometry(Part.Circle(V(-95, -109.5, 0), V(0, 0, 1), 3), False)
sketch11.addGeometry(Part.Circle(V(39.2, -48.7, 0), V(0, 0, 1), 3), False)
sketch11.addGeometry(Part.Circle(V(-72, 67.5, 0), V(0, 0, 1), 3), False)
sketch11.addGeometry(Part.Circle(V(-72, 37.5, 0), V(0, 0, 1), 3), False)
sketch11.addGeometry(Part.Circle(V(-72, 97.5, 0), V(0, 0, 1), 3), False)
sketch11.addConstraint(Sketcher.Constraint("Equal", 0, 1))
sketch11.addConstraint(Sketcher.Constraint("Equal", 1, 2))
sketch11.addConstraint(Sketcher.Constraint("Equal", 2, 3))
sketch11.addConstraint(Sketcher.Constraint("Equal", 3, 4))
sketch11.addConstraint(Sketcher.Constraint("Equal", 4, 5))
sketch11.addConstraint(Sketcher.Constraint("Equal", 5, 6))
sketch11.addConstraint(Sketcher.Constraint("Equal", 6, 7))
sketch11.addConstraint(Sketcher.Constraint("Equal", 7, 8))
sketch11.addConstraint(Sketcher.Constraint("Equal", 8, 9))
sketch11.addConstraint(Sketcher.Constraint("Equal", 9, 10))
sketch11.addConstraint(Sketcher.Constraint("Equal", 11, 12))
sketch11.addConstraint(Sketcher.Constraint("Equal", 10, 13))
sketch11.addConstraint(Sketcher.Constraint("Horizontal", 0, 3, 1, 3))
sketch11.addConstraint(Sketcher.Constraint("Horizontal", 1, 3, 2, 3))
sketch11.addConstraint(Sketcher.Constraint("Vertical", 3, 3, 4, 3))
sketch11.addConstraint(Sketcher.Constraint("Vertical", 11, 3, 12, 3))
sketch11.addConstraint(Sketcher.Constraint("Vertical", 12, 3, 13, 3))
sketch11.addConstraint(Sketcher.Constraint("Diameter", 11, Q("6 mm")))
sketch11.addConstraint(Sketcher.Constraint("Diameter", 0, Q("5.99 mm")))
sketch11.addConstraint(Sketcher.Constraint("DistanceX", 0, 3, -1, 1, Q("75 mm")))
sketch11.addConstraint(Sketcher.Constraint("DistanceX", -1, 1, 1, 3, Q("5 mm")))
sketch11.addConstraint(Sketcher.Constraint("DistanceX", -1, 1, 2, 3, Q("85 mm")))
sketch11.addConstraint(Sketcher.Constraint("DistanceX", -1, 1, 3, 3, Q("132 mm")))
sketch11.addConstraint(Sketcher.Constraint("DistanceY", -1, 1, 3, 3, Q("60 mm")))
sketch11.addConstraint(Sketcher.Constraint("DistanceY", -1, 1, 4, 3, Q("9 mm")))
sketch11.addConstraint(Sketcher.Constraint("DistanceX", 9, 3, -1, 1, Q("95 mm")))
sketch11.addConstraint(Sketcher.Constraint("DistanceX", 11, 3, -1, 1, Q("72 mm")))
sketch11.addConstraint(Sketcher.Constraint("DistanceY", 8, 3, 5, 3, Q("25 mm")))
sketch11.addConstraint(Sketcher.Constraint("DistanceY", 9, 3, 0, 3, Q("219 mm")))
sketch11.addConstraint(Sketcher.Constraint("DistanceY", 11, 3, 0, 3, Q("42 mm")))
sketch11.addConstraint(Sketcher.Constraint("DistanceY", 12, 3, 11, 3, Q("30 mm")))
sketch11.addConstraint(Sketcher.Constraint("DistanceY", 13, 3, 0, 3, Q("12 mm")))
sketch11.addConstraint(Sketcher.Constraint("DistanceY", -1, 1, 0, 3, Q("109.5 mm")))
sketch11.addConstraint(Sketcher.Constraint("DistanceY", 5, 3, 10, 3, Q("23.75 mm")))
sketch11.addConstraint(Sketcher.Constraint("DistanceX", 5, 3, -1, 1, Q("1.9404 mm")))
sketch11.addConstraint(Sketcher.Constraint("DistanceY", 6, 3, -1, 1, Q("34.88361 mm")))
sketch11.addConstraint(Sketcher.Constraint("DistanceX", -1, 1, 7, 3, Q("66.699842 mm")))
sketch11.addConstraint(Sketcher.Constraint("DistanceY", 7, 3, -1, 1, Q("39.46403 mm")))
sketch11.addConstraint(Sketcher.Constraint("DistanceX", 8, 3, -1, 1, Q("45.24167 mm")))
sketch11.addConstraint(Sketcher.Constraint("DistanceY", 5, 3, -1, 1, Q("72.401924 mm")))
sketch11.addConstraint(Sketcher.Constraint("DistanceX", -1, 1, 6, 3, Q("119.054285 mm")))
sketch11.addConstraint(Sketcher.Constraint("DistanceX", -1, 1, 10, 3, Q("39.195807 mm")))
sketch11.setExpression("Constraints[17]", "Params.sketch11_diameter")
sketch11.setExpression("Constraints[18]", "Params.sketch11_diameter2")
pocket8 = body.newObject("PartDesign::Pocket", "Pocket007")
pocket8.Profile = sketch11
pocket8.setExpression("Length", "Params.pocket8_length")

# Sketch on XY plane
sketch12 = body.newObject("Sketcher::SketchObject", "Sketch011")
sketch12.AttachmentSupport = (doc.getObject("XY_Plane"), [""])
sketch12.MapMode = "FlatFace"
sketch12.AttachmentOffset = App.Placement(V(0, 0, 6), App.Rotation())
sketch12.addGeometry(Part.Circle(V(-75, 109.5, 0), V(0, 0, 1), 1.5), False)
sketch12.addGeometry(Part.Circle(V(5, 109.5, 0), V(0, 0, 1), 1.5), False)
sketch12.addGeometry(Part.Circle(V(85, 109.5, 0), V(0, 0, 1), 1.5), False)
sketch12.addGeometry(Part.Circle(V(132, 60, 0), V(0, 0, 1), 1.5), False)
sketch12.addGeometry(Part.Circle(V(132, 9, 0), V(0, 0, 1), 1.5), False)
sketch12.addGeometry(Part.Circle(V(119.1, -34.9, 0), V(0, 0, 1), 1.5), False)
sketch12.addGeometry(Part.Circle(V(66.7, -39.5, 0), V(0, 0, 1), 1.5), False)
sketch12.addGeometry(Part.Circle(V(-1.9, -72.4, 0), V(0, 0, 1), 1.5), False)
sketch12.addGeometry(Part.Circle(V(-45.2, -97.4, 0), V(0, 0, 1), 1.5), False)
sketch12.addGeometry(Part.Circle(V(-72, 97.5, 0), V(0, 0, 1), 1.5), False)
sketch12.addGeometry(Part.Circle(V(-72, 67.5, 0), V(0, 0, 1), 1.5), False)
sketch12.addGeometry(Part.Circle(V(-72, 37.5, 0), V(0, 0, 1), 1.5), False)
sketch12.addGeometry(Part.Circle(V(-95, -109.5, 0), V(0, 0, 1), 1.5), False)
sketch12.addGeometry(Part.Circle(V(39.2, -48.7, 0), V(0, 0, 1), 1.5), False)
sketch12.addGeometry(Part.Circle(V(-93, 102.5, 0), V(0, 0, 1), 1.5), False)
sketch12.addConstraint(Sketcher.Constraint("Equal", 0, 1))
sketch12.addConstraint(Sketcher.Constraint("Equal", 1, 2))
sketch12.addConstraint(Sketcher.Constraint("Equal", 2, 3))
sketch12.addConstraint(Sketcher.Constraint("Equal", 3, 4))
sketch12.addConstraint(Sketcher.Constraint("Equal", 4, 5))
sketch12.addConstraint(Sketcher.Constraint("Equal", 5, 6))
sketch12.addConstraint(Sketcher.Constraint("Equal", 6, 7))
sketch12.addConstraint(Sketcher.Constraint("Equal", 7, 8))
sketch12.addConstraint(Sketcher.Constraint("Equal", 8, 9))
sketch12.addConstraint(Sketcher.Constraint("Equal", 9, 10))
sketch12.addConstraint(Sketcher.Constraint("Equal", 10, 11))
sketch12.addConstraint(Sketcher.Constraint("Equal", 11, 12))
sketch12.addConstraint(Sketcher.Constraint("Equal", 12, 13))
sketch12.addConstraint(Sketcher.Constraint("Equal", 13, 14))
sketch12.addConstraint(Sketcher.Constraint("Horizontal", 0, 3, 1, 3))
sketch12.addConstraint(Sketcher.Constraint("Horizontal", 1, 3, 2, 3))
sketch12.addConstraint(Sketcher.Constraint("Vertical", 3, 3, 4, 3))
sketch12.addConstraint(Sketcher.Constraint("Vertical", 9, 3, 10, 3))
sketch12.addConstraint(Sketcher.Constraint("Vertical", 10, 3, 11, 3))
sketch12.addConstraint(Sketcher.Constraint("Diameter", 0, Q("3 mm")))
sketch12.addConstraint(Sketcher.Constraint("DistanceX", 0, 3, -1, 1, Q("75 mm")))
sketch12.addConstraint(Sketcher.Constraint("DistanceX", -1, 1, 1, 3, Q("5 mm")))
sketch12.addConstraint(Sketcher.Constraint("DistanceX", -1, 1, 2, 3, Q("85 mm")))
sketch12.addConstraint(Sketcher.Constraint("DistanceX", -1, 1, 3, 3, Q("132 mm")))
sketch12.addConstraint(Sketcher.Constraint("DistanceY", -1, 1, 3, 3, Q("60 mm")))
sketch12.addConstraint(Sketcher.Constraint("DistanceY", -1, 1, 4, 3, Q("9 mm")))
sketch12.addConstraint(Sketcher.Constraint("DistanceX", 9, 3, -1, 1, Q("72 mm")))
sketch12.addConstraint(Sketcher.Constraint("DistanceX", 12, 3, -1, 1, Q("95 mm")))
sketch12.addConstraint(Sketcher.Constraint("DistanceX", 14, 3, -1, 1, Q("93 mm")))
sketch12.addConstraint(Sketcher.Constraint("DistanceY", 8, 3, 7, 3, Q("25 mm")))
sketch12.addConstraint(Sketcher.Constraint("DistanceY", 9, 3, 0, 3, Q("12 mm")))
sketch12.addConstraint(Sketcher.Constraint("DistanceY", 10, 3, 9, 3, Q("30 mm")))
sketch12.addConstraint(Sketcher.Constraint("DistanceY", 11, 3, 10, 3, Q("30 mm")))
sketch12.addConstraint(Sketcher.Constraint("DistanceY", 12, 3, 11, 3, Q("147 mm")))
sketch12.addConstraint(Sketcher.Constraint("DistanceY", 14, 3, 0, 3, Q("7 mm")))
sketch12.addConstraint(Sketcher.Constraint("DistanceY", -1, 1, 0, 3, Q("109.5 mm")))
sketch12.addConstraint(Sketcher.Constraint("DistanceY", 7, 3, 13, 3, Q("23.75 mm")))
sketch12.addConstraint(Sketcher.Constraint("DistanceX", 7, 3, -1, 1, Q("1.9404 mm")))
sketch12.addConstraint(Sketcher.Constraint("DistanceY", 5, 3, -1, 1, Q("34.88361 mm")))
sketch12.addConstraint(Sketcher.Constraint("DistanceX", -1, 1, 6, 3, Q("66.699842 mm")))
sketch12.addConstraint(Sketcher.Constraint("DistanceY", 6, 3, -1, 1, Q("39.46403 mm")))
sketch12.addConstraint(Sketcher.Constraint("DistanceX", 8, 3, -1, 1, Q("45.24167 mm")))
sketch12.addConstraint(Sketcher.Constraint("DistanceX", -1, 1, 5, 3, Q("119.054285 mm")))
sketch12.addConstraint(Sketcher.Constraint("DistanceY", 7, 3, -1, 1, Q("72.401924 mm")))
sketch12.addConstraint(Sketcher.Constraint("DistanceX", -1, 1, 13, 3, Q("39.195807 mm")))
sketch12.setExpression("Constraints[19]", "Params.sketch12_diameter")
pocket9 = body.newObject("PartDesign::Pocket", "Pocket008")
pocket9.Profile = sketch12
pocket9.setExpression("Length", "Params.pocket9_length")

doc.recompute()
